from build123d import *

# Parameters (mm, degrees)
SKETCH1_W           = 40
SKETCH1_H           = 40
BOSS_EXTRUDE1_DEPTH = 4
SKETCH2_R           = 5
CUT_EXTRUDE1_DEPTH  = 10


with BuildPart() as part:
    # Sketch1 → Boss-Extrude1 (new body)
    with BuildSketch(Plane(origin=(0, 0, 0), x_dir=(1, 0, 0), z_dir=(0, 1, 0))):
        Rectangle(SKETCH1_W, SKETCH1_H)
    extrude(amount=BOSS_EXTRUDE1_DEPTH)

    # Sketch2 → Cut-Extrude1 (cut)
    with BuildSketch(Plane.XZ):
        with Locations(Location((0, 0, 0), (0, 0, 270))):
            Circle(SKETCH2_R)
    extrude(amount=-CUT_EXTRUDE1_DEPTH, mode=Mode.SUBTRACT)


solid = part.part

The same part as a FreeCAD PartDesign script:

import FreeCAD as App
import Part
import Sketcher
Q = App.Units.Quantity


def add_polygon(sketch, points):
    """Adds a closed chain of lines whose ends are joined by coincident constraints."""
    first, n = sketch.GeometryCount, len(points)
    for a, b in zip(points, points[1:] + points[:1]):
        sketch.addGeometry(Part.LineSegment(App.Vector(*a, 0), App.Vector(*b, 0)), False)
    for i in range(n):
        sketch.addConstraint(Sketcher.Constraint("Coincident", first + i, 2, first + (i + 1) % n, 1))

doc = App.newDocument("Part")
params = doc.addObject("Spreadsheet::Sheet", "Params")
for row, (alias, value) in enumerate([
    ("sketch1_width", "40 mm"),
    ("pad1_length", "4 mm"),
    ("sketch2_diameter", "10 mm"),
    ("pocket1_length", "10 mm"),
], start=1):
    params.set(f"A{row}", alias)
    params.set(f"B{row}", "=" + value)
    params.setAlias(f"B{row}", alias)

body = doc.addObject("PartDesign::Body", "Body")

# Sketch on XZ plane
sketch1 = body.newObject("Sketcher::SketchObject", "Sketch")
sketch1.AttachmentSupport = (doc.getObject("XZ_Plane"), [""])
sketch1.MapMode = "FlatFace"
add_polygon(sketch1, [(-20, -20), (-20, 20), (20, 20), (20, -20)])  # lines 0-3
sketch1.addConstraint(Sketcher.Constraint("Vertical", 0))
sketch1.addConstraint(Sketcher.Constraint("Horizontal", 1))
sketch1.addConstraint(Sketcher.Constraint("Vertical", 2))
sketch1.addConstraint(Sketcher.Constraint("Horizontal", 3))
sketch1.addConstraint(Sketcher.Constraint("Symmetric", 0, 2, 2, 2, -1, 1))
sketch1.addConstraint(Sketcher.Constraint("Equal", 3, 0))
sketch1.addConstraint(Sketcher.Constraint("DistanceX", 1, 1, 1, 2, Q("40 mm")))
sketch1.setExpression("Constraints[10]", "Params.sketch1_width")
pad1 = body.newObject("PartDesign::Pad", "Pad")
pad1.Profile = sketch1
pad1.setExpression("Length", "Params.pad1_length")
pad1.Reversed = True

# Sketch on XZ plane
sketch2 = body.newObject("Sketcher::SketchObject", "Sketch001")
sketch2.AttachmentSupport = (doc.getObject("XZ_Plane"), [""])
sketch2.MapMode = "FlatFace"
sketch2.addGeometry(Part.Circle(App.Vector(0, 0, 0), App.Vector(0, 0, 1), 5), False)
sketch2.addConstraint(Sketcher.Constraint("Coincident", 0, 3, -1, 1))
sketch2.addConstraint(Sketcher.Constraint("Diameter", 0, Q("10 mm")))
sketch2.setExpression("Constraints[1]", "Params.sketch2_diameter")
pocket1 = body.newObject("PartDesign::Pocket", "Pocket")
pocket1.Profile = sketch2
pocket1.setExpression("Length", "Params.pocket1_length")

doc.recompute()
